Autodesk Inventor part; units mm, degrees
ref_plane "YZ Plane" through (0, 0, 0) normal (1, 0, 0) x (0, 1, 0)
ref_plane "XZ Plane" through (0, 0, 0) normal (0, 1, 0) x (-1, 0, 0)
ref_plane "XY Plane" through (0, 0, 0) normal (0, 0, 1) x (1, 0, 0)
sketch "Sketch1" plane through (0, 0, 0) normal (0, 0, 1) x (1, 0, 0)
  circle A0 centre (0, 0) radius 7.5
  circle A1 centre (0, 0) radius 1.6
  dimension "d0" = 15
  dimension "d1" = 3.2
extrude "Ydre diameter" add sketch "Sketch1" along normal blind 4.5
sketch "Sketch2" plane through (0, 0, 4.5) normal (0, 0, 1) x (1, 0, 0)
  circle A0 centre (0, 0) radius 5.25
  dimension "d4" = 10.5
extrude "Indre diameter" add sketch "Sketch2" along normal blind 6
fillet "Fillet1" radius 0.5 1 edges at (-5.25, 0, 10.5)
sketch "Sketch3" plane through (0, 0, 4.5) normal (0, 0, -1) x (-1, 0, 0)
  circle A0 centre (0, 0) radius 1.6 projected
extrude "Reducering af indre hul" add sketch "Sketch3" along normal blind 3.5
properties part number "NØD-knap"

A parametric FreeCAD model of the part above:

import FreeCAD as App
import Part
import Sketcher
from FreeCAD import Vector
Q = App.Units.Quantity


def edges_at(feature, points):
    """Names of the edges that pass closest to the given points."""
    edges = feature.Shape.Edges
    near = lambda p: min(range(len(edges)), key=lambda i: edges[i].distToShape(Part.Vertex(*p))[0])
    return sorted({f"Edge{near(p) + 1}" for p in points})

doc = App.newDocument("Part")
body = doc.addObject("PartDesign::Body", "Body")

# Sketch on XY plane
sketch1 = body.newObject("Sketcher::SketchObject", "Sketch")
sketch1.AttachmentSupport = (doc.getObject("XY_Plane"), [""])
sketch1.MapMode = "FlatFace"
sketch1.addGeometry([
    Part.Circle(Vector(0, 0, 0), Vector(0, 0, 1), 7.5),
    Part.Circle(Vector(0, 0, 0), Vector(0, 0, 1), 1.6),
], False)
sketch1.addConstraint([
    Sketcher.Constraint("Coincident", 0, 3, -1, 1),
    Sketcher.Constraint("Coincident", 1, 3, -1, 1),
    Sketcher.Constraint("Diameter", 0, Q("15 mm")),
    Sketcher.Constraint("Diameter", 1, Q("3.2 mm")),
])
pad1 = body.newObject("PartDesign::Pad", "Pad")
pad1.Profile = sketch1
pad1.Length = 4.5

# Sketch on XY plane
sketch2 = body.newObject("Sketcher::SketchObject", "Sketch001")
sketch2.AttachmentSupport = (doc.getObject("XY_Plane"), [""])
sketch2.MapMode = "FlatFace"
sketch2.AttachmentOffset = App.Placement(Vector(0, 0, 4.5), App.Rotation())
sketch2.addGeometry(Part.Circle(Vector(0, 0, 0), Vector(0, 0, 1), 5), False)
sketch2.addConstraint([
    Sketcher.Constraint("Coincident", 0, 3, -1, 1),
    Sketcher.Constraint("Diameter", 0, Q("10.5 mm")),
])
pad2 = body.newObject("PartDesign::Pad", "Pad001")
pad2.Profile = sketch2
pad2.Length = 6
doc.recompute()

fillet = body.newObject("PartDesign::Fillet", "Fillet")
fillet.Base = (pad2, edges_at(pad2, [(-5.25, 0, 10.5)]))
fillet.Radius = 0.5

# Sketch on XY plane
sketch3 = body.newObject("Sketcher::SketchObject", "Sketch002")
sketch3.AttachmentSupport = (doc.getObject("XY_Plane"), [""])
sketch3.MapMode = "FlatFace"
sketch3.AttachmentOffset = App.Placement(Vector(0, 0, 4.5), App.Rotation())
sketch3.addGeometry(Part.Circle(Vector(0, 0, 0), Vector(0, 0, 1), 1.6), False)
sketch3.addConstraint([
    Sketcher.Constraint("Coincident", 0, 3, -1, 1),
    Sketcher.Constraint("Diameter", 0, Q("3.2 mm")),
])
pad3 = body.newObject("PartDesign::Pad", "Pad002")
pad3.Profile = sketch3
pad3.Length = 3.5
pad3.Reversed = True

doc.recompute()
